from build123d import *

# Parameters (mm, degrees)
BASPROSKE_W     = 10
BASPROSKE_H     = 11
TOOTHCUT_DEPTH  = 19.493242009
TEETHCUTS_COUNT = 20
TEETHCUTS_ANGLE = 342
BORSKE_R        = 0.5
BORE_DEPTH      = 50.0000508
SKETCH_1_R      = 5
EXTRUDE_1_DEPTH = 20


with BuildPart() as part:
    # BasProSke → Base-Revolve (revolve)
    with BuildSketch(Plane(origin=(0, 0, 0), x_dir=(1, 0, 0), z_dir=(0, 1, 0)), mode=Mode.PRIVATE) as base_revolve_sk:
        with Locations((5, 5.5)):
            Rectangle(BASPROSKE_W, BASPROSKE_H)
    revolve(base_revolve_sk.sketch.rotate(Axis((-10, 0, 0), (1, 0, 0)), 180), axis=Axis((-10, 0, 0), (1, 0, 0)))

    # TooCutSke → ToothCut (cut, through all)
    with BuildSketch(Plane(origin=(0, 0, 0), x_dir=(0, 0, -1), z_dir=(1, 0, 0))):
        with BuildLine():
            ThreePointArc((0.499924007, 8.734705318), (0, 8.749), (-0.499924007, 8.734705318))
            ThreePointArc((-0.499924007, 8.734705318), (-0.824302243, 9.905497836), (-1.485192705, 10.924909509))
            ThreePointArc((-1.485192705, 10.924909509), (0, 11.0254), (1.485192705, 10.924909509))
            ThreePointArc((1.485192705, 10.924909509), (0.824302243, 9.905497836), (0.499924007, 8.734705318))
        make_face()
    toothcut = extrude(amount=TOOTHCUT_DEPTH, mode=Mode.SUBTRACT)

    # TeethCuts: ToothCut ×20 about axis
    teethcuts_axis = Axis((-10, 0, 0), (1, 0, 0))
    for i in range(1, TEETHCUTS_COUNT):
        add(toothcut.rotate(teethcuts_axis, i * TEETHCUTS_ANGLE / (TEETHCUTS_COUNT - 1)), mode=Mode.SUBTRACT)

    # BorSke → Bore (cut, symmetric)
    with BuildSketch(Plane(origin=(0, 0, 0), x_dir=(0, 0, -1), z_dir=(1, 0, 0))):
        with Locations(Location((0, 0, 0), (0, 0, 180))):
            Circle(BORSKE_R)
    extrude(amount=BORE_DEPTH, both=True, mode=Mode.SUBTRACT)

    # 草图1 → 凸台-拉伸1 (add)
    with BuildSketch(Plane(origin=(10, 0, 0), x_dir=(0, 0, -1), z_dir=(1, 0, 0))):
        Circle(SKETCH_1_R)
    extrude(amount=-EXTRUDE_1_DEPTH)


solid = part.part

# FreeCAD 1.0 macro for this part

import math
import FreeCAD as App
import Part
import Sketcher


def add_polygon(sketch, points):
    """Adds a closed chain of lines whose ends are joined by coincident constraints."""
    first, n = sketch.GeometryCount, len(points)
    for a, b in zip(points, points[1:] + points[:1]):
        sketch.addGeometry(Part.LineSegment(App.Vector(*a, 0), App.Vector(*b, 0)), False)
    for i in range(n):
        sketch.addConstraint(Sketcher.Constraint("Coincident", first + i, 2, first + (i + 1) % n, 1))

doc = App.newDocument("Part")
body = doc.addObject("PartDesign::Body", "Body")

# Sketch on XZ plane
sketch1 = body.newObject("Sketcher::SketchObject", "Sketch")
sketch1.AttachmentSupport = (doc.getObject("XZ_Plane"), [""])
sketch1.MapMode = "FlatFace"
add_polygon(sketch1, [(0, -11), (0, 0), (10, 0), (10, -11)])  # lines 0-3
sketch1.addConstraint([
    Sketcher.Constraint("Vertical", 0),
    Sketcher.Constraint("Horizontal", 1),
    Sketcher.Constraint("Vertical", 2),
    Sketcher.Constraint("Horizontal", 3),
    Sketcher.Constraint("Coincident", 0, 2, -1, 1),
    Sketcher.Constraint("DistanceX", 1, 1, 1, 2, 10.0),
    Sketcher.Constraint("DistanceY", 0, 1, 0, 2, 11.0),
])
revolution = body.newObject("PartDesign::Revolution", "Revolution")
revolution.Profile = sketch1
revolution.ReferenceAxis = (sketch1, ["H_Axis"])
revolution.Angle = 360

# Sketch on YZ plane
sketch2 = body.newObject("Sketcher::SketchObject", "Sketch001")
sketch2.AttachmentSupport = (doc.getObject("YZ_Plane"), [""])
sketch2.MapMode = "FlatFace"
sketch2.addGeometry([
    Part.ArcOfCircle(Part.Circle(App.Vector(0, 0, 0), App.Vector(0, 0, 1), 8.749), math.radians(-3.275705), math.radians(3.275705)),
    Part.ArcOfCircle(Part.Circle(App.Vector(8.264487, -4.47219, 0), App.Vector(0, 0, 1), 4), math.radians(48.309566), math.radians(83.249005)),
    Part.ArcOfCircle(Part.Circle(App.Vector(0, 0, 0), App.Vector(0, 0, 1), 11.0254), math.radians(-7.741647), math.radians(7.741647)),
    Part.ArcOfCircle(Part.Circle(App.Vector(8.264487, 4.47219, 0), App.Vector(0, 0, 1), 4), math.radians(-83.249005), math.radians(-48.309566)),
], False)
sketch2.addConstraint([
    Sketcher.Constraint("Coincident", 0, 1, 1, 2),
    Sketcher.Constraint("Coincident", 1, 1, 2, 1),
    Sketcher.Constraint("Coincident", 2, 2, 3, 2),
    Sketcher.Constraint("Coincident", 3, 1, 0, 2),
    Sketcher.Constraint("Coincident", 0, 3, -1, 1),
    Sketcher.Constraint("Coincident", 2, 3, -1, 1),
    Sketcher.Constraint("Equal", 1, 3),
    Sketcher.Constraint("Symmetric", 1, 3, 3, 3, -1),
    Sketcher.Constraint("Radius", 1, 4.0),
    Sketcher.Constraint("Radius", 0, 8.749),
    Sketcher.Constraint("Radius", 2, 11.0254),
    Sketcher.Constraint("DistanceY", 1, 3, -1, 1, 4.47219),
    Sketcher.Constraint("DistanceX", -1, 1, 1, 1, 10.92491),
])
pocket1 = body.newObject("PartDesign::Pocket", "Pocket")
pocket1.Profile = sketch2
pocket1.Type = "ThroughAll"
pocket1.Reversed = True
doc.recompute()

polarpattern = body.newObject("PartDesign::PolarPattern", "PolarPattern")
polarpattern.Originals = [pocket1]
polarpattern.Axis = (doc.getObject("X_Axis"), [""])
polarpattern.Angle = 360
polarpattern.Occurrences = 20
body.Tip = polarpattern

# Sketch on YZ plane
sketch3 = body.newObject("Sketcher::SketchObject", "Sketch002")
sketch3.AttachmentSupport = (doc.getObject("YZ_Plane"), [""])
sketch3.MapMode = "FlatFace"
sketch3.addGeometry(Part.Circle(App.Vector(0, 0, 0), App.Vector(0, 0, 1), 0.5), False)
sketch3.addConstraint([
    Sketcher.Constraint("Coincident", 0, 3, -1, 1),
    Sketcher.Constraint("Diameter", 0, 1.0),
])
pocket2 = body.newObject("PartDesign::Pocket", "Pocket001")
pocket2.Profile = sketch3
pocket2.Length = 100.000102
pocket2.Midplane = True

# Sketch on YZ plane
sketch4 = body.newObject("Sketcher::SketchObject", "Sketch003")
sketch4.AttachmentSupport = (doc.getObject("YZ_Plane"), [""])
sketch4.MapMode = "FlatFace"
sketch4.AttachmentOffset = App.Placement(App.Vector(0, 0, 10), App.Rotation())
sketch4.addGeometry(Part.Circle(App.Vector(0, 0, 0), App.Vector(0, 0, 1), 5), False)
sketch4.addConstraint([
    Sketcher.Constraint("Coincident", 0, 3, -1, 1),
    Sketcher.Constraint("Diameter", 0, 10.0),
])
pad1 = body.newObject("PartDesign::Pad", "Pad")
pad1.Profile = sketch4
pad1.Length = 20
pad1.Reversed = True

doc.recompute()
